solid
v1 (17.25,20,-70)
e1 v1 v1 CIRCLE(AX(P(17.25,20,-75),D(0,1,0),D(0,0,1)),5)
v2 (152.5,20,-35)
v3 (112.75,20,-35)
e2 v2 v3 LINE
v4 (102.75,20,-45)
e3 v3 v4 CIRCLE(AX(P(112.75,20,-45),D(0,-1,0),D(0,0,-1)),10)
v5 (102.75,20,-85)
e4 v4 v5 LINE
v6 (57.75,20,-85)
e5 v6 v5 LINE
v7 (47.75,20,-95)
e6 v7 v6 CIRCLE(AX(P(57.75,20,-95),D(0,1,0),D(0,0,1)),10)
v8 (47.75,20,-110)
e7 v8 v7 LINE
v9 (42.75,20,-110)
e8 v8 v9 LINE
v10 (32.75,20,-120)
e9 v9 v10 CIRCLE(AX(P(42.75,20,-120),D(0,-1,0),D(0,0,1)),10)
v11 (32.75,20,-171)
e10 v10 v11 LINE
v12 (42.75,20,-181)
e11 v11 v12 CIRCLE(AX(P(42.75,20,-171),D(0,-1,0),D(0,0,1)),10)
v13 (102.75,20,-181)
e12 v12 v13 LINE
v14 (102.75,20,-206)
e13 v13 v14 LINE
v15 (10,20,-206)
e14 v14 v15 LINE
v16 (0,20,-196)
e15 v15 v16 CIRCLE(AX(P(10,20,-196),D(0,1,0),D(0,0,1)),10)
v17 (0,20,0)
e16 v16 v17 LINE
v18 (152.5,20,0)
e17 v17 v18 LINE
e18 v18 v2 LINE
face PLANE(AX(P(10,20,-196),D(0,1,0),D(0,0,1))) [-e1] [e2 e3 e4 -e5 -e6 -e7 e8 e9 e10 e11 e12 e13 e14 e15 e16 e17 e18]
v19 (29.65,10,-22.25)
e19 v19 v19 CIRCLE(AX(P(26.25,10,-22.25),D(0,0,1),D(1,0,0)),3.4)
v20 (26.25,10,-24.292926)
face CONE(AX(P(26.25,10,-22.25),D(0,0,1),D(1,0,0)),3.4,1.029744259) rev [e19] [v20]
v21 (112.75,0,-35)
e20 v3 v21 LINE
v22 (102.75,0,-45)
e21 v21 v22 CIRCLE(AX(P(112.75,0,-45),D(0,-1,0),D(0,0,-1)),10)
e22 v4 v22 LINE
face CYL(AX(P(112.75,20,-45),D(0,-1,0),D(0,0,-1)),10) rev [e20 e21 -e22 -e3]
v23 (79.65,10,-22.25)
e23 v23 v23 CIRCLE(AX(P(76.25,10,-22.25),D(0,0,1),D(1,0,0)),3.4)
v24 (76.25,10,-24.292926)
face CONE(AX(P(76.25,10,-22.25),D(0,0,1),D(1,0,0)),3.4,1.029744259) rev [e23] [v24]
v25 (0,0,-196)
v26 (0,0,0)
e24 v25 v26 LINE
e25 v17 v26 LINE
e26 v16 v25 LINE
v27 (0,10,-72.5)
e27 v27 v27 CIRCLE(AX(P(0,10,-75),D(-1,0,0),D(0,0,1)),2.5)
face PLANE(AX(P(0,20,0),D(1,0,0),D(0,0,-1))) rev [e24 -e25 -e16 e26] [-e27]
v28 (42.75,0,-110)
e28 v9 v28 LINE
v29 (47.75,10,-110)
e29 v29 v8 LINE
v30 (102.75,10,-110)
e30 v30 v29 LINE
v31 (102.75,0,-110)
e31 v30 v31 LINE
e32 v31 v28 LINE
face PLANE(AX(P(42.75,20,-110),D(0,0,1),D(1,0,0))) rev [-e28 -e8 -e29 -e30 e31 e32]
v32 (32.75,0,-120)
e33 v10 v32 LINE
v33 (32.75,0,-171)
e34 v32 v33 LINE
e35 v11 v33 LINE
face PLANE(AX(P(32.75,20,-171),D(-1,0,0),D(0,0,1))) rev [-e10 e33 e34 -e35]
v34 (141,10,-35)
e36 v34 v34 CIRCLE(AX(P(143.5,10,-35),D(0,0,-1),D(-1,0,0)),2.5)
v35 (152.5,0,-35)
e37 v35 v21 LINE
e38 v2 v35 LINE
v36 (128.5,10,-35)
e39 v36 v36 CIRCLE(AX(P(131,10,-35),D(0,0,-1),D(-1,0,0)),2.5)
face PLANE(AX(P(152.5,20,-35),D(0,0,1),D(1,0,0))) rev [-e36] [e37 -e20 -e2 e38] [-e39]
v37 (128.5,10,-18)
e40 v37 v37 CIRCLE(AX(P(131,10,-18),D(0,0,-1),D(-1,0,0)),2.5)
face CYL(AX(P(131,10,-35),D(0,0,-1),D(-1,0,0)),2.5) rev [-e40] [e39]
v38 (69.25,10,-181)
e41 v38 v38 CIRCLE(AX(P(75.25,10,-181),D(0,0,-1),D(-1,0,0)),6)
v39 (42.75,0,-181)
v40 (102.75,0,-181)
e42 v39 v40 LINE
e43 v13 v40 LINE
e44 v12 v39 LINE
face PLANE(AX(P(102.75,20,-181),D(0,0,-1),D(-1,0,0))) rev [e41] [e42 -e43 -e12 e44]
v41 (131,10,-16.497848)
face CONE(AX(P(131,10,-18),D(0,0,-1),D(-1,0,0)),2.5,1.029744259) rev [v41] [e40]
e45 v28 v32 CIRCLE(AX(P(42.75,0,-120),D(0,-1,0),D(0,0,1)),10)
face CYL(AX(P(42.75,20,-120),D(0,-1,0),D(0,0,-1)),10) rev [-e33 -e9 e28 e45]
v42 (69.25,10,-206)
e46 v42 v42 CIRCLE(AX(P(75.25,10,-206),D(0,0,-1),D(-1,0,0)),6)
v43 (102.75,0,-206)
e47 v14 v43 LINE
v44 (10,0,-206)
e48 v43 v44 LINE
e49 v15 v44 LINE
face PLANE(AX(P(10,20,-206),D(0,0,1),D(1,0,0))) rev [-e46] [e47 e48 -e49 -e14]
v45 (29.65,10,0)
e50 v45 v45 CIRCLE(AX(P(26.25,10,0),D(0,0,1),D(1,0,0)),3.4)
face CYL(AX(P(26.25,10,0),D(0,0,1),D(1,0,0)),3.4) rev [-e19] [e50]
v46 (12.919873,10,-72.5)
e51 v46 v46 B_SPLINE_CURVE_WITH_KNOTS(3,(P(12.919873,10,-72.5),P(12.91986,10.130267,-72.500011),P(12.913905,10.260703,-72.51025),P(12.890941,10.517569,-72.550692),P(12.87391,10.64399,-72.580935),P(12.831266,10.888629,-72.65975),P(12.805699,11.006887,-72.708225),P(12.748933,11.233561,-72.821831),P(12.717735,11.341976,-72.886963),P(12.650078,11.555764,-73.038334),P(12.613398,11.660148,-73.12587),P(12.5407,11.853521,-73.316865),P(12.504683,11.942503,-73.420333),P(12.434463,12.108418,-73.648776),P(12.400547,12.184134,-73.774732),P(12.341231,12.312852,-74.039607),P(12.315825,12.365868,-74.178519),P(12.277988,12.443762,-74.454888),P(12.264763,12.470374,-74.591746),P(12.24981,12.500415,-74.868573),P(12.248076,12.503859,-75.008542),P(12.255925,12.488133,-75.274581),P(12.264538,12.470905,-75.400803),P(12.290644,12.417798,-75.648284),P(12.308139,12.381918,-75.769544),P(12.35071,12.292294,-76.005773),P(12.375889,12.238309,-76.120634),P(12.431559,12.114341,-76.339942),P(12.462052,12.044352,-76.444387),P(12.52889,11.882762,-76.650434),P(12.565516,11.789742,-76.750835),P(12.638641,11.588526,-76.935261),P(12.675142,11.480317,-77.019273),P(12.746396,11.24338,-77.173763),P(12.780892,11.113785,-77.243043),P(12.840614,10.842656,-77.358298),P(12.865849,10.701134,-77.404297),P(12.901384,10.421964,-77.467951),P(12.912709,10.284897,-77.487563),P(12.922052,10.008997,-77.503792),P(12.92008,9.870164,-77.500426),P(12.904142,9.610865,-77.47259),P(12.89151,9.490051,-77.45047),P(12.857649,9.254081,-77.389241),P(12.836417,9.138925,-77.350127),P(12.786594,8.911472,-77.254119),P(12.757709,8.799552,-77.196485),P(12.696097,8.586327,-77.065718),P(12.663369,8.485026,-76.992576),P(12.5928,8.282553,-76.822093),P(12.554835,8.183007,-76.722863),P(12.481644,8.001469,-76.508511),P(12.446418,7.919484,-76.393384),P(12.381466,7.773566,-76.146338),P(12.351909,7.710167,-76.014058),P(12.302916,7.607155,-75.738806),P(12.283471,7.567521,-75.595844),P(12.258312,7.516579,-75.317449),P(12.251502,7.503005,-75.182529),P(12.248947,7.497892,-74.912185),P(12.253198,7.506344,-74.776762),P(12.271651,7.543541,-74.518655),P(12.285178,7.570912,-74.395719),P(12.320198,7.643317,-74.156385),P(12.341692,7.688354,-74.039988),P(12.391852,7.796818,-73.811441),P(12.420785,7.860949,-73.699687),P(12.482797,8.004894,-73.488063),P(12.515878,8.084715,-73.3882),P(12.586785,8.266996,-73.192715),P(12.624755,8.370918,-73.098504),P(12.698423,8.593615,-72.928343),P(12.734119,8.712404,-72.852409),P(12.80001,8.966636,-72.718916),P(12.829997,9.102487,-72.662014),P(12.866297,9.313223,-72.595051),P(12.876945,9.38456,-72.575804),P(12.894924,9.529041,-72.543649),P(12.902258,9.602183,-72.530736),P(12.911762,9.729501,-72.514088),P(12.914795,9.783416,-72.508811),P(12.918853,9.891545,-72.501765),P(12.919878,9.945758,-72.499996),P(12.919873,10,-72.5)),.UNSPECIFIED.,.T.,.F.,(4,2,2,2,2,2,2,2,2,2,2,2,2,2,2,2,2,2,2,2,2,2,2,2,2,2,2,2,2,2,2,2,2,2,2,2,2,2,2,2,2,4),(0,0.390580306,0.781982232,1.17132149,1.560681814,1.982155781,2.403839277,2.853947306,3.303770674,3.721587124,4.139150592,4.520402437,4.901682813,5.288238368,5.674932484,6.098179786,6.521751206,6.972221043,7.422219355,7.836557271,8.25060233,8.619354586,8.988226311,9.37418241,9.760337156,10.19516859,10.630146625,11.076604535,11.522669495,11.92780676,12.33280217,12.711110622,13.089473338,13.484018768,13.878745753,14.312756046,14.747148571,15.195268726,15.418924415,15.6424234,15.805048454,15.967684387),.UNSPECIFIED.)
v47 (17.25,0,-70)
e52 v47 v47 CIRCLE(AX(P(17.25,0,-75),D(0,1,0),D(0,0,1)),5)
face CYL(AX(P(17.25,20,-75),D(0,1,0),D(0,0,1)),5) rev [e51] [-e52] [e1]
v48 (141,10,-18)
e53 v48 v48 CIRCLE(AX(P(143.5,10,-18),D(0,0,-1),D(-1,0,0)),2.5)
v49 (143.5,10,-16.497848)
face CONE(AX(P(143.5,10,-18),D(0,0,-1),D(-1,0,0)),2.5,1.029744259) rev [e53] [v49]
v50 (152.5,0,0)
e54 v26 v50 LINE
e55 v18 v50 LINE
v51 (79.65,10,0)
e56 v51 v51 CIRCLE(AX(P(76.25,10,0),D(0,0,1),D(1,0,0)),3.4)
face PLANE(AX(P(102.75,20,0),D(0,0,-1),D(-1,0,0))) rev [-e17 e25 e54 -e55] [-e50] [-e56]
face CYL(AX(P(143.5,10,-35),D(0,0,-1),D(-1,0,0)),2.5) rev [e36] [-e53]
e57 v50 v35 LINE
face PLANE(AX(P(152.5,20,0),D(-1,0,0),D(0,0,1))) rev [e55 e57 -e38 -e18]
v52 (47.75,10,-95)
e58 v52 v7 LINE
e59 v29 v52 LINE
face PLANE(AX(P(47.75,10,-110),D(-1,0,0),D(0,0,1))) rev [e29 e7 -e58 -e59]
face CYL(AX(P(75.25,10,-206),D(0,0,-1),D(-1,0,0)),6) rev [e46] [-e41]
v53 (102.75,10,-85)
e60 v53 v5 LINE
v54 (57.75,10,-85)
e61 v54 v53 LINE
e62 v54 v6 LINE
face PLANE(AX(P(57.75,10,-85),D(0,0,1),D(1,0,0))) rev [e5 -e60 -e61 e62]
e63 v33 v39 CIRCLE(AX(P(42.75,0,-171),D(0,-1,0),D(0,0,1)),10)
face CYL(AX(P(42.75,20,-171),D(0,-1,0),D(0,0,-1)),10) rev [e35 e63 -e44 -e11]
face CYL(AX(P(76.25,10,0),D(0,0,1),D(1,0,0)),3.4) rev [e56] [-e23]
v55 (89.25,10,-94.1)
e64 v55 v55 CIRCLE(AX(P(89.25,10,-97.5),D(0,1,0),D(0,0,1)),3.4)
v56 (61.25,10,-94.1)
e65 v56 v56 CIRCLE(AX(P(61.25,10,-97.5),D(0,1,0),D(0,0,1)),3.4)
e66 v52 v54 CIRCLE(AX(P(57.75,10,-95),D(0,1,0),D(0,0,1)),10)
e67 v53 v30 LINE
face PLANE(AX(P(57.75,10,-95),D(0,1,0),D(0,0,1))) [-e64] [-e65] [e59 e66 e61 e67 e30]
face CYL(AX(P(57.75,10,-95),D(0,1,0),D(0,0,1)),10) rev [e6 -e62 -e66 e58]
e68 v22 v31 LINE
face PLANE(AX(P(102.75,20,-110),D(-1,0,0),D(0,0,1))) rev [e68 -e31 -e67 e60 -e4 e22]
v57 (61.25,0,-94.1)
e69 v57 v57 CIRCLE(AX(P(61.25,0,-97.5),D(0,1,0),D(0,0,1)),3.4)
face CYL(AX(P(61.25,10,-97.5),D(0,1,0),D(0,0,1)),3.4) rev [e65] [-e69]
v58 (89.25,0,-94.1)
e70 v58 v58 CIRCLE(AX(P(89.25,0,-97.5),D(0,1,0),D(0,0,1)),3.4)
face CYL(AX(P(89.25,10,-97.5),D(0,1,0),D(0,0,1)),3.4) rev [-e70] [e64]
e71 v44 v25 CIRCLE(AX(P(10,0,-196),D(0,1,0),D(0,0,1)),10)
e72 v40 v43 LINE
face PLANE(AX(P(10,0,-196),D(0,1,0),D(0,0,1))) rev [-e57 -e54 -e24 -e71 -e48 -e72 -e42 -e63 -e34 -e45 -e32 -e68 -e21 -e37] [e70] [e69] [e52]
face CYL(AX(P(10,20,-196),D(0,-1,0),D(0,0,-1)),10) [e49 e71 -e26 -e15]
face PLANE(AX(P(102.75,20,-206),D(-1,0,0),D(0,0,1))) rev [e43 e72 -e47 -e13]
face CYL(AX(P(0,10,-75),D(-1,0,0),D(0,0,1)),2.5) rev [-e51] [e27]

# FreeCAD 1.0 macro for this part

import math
import FreeCAD as App
import Part
import Sketcher

V = App.Vector
Q = App.Units.Quantity

doc = App.newDocument("Part")
body = doc.addObject("PartDesign::Body", "Body")

# Sketch on XZ plane
sketch1 = doc.addObject("Sketcher::SketchObject", "Sketch")
body.addObject(sketch1)
sketch1.AttachmentSupport = (doc.XZ_Plane, [""])
sketch1.MapMode = "FlatFace"
sketch1.addGeometry([
    Part.LineSegment(V(0, -196, 0), V(0, 0, 0)),  # 0
    Part.LineSegment(V(0, 0, 0), V(152, 0, 0)),  # 1
    Part.LineSegment(V(152, 0, 0), V(152, -35, 0)),  # 2
    Part.LineSegment(V(152, -35, 0), V(113, -35, 0)),  # 3
    Part.ArcOfCircle(Part.Circle(V(113, -45, 0), V(0, 0, 1), 10), math.radians(90), math.radians(180)),  # 4
    Part.LineSegment(V(103, -45, 0), V(103, -110, 0)),  # 5
    Part.LineSegment(V(103, -110, 0), V(43, -110, 0)),  # 6
    Part.ArcOfCircle(Part.Circle(V(43, -120, 0), V(0, 0, 1), 10), math.radians(90), math.radians(180)),  # 7
    Part.LineSegment(V(33, -120, 0), V(33, -171, 0)),  # 8
    Part.ArcOfCircle(Part.Circle(V(43, -171, 0), V(0, 0, 1), 10), math.radians(180), math.radians(270)),  # 9
    Part.LineSegment(V(43, -181, 0), V(103, -181, 0)),  # 10
    Part.LineSegment(V(103, -181, 0), V(103, -206, 0)),  # 11
    Part.LineSegment(V(103, -206, 0), V(10, -206, 0)),  # 12
    Part.ArcOfCircle(Part.Circle(V(10, -196, 0), V(0, 0, 1), 10), math.radians(180), math.radians(270)),  # 13
], False)
sketch1.addConstraint([
    Sketcher.Constraint("Coincident", 0, 2, 1, 1),
    Sketcher.Constraint("Coincident", 1, 2, 2, 1),
    Sketcher.Constraint("Coincident", 2, 2, 3, 1),
    Sketcher.Constraint("Tangent", 3, 2, 4, 1),
    Sketcher.Constraint("Tangent", 4, 2, 5, 1),
    Sketcher.Constraint("Coincident", 5, 2, 6, 1),
    Sketcher.Constraint("Tangent", 6, 2, 7, 1),
    Sketcher.Constraint("Tangent", 7, 2, 8, 1),
    Sketcher.Constraint("Tangent", 8, 2, 9, 1),
    Sketcher.Constraint("Tangent", 9, 2, 10, 1),
    Sketcher.Constraint("Coincident", 10, 2, 11, 1),
    Sketcher.Constraint("Coincident", 11, 2, 12, 1),
    Sketcher.Constraint("Tangent", 12, 2, 13, 2),
    Sketcher.Constraint("Tangent", 13, 1, 0, 1),
    Sketcher.Constraint("Vertical", 0),
    Sketcher.Constraint("Horizontal", 1),
    Sketcher.Constraint("Vertical", 2),
    Sketcher.Constraint("Horizontal", 3),
    Sketcher.Constraint("Vertical", 5),
    Sketcher.Constraint("Horizontal", 6),
    Sketcher.Constraint("Vertical", 8),
    Sketcher.Constraint("Horizontal", 10),
    Sketcher.Constraint("Vertical", 11),
    Sketcher.Constraint("Horizontal", 12),
    Sketcher.Constraint("Coincident", 0, 2, -1, 1),
    Sketcher.Constraint("Equal", 4, 7),
    Sketcher.Constraint("Equal", 7, 9),
    Sketcher.Constraint("Equal", 9, 13),
    Sketcher.Constraint("Vertical", 5, 2, 10, 2),
    Sketcher.Constraint("Radius", 4, Q("10 mm")),
    Sketcher.Constraint("DistanceX", 6, 2, 6, 1, Q("60 mm")),
    Sketcher.Constraint("DistanceY", 0, 1, 0, 2, Q("196 mm")),
    Sketcher.Constraint("DistanceY", 2, 2, 2, 1, Q("35 mm")),
    Sketcher.Constraint("DistanceY", 5, 2, 5, 1, Q("65 mm")),
    Sketcher.Constraint("DistanceY", 8, 2, 8, 1, Q("51 mm")),
    Sketcher.Constraint("DistanceX", 1, 1, 1, 2, Q("152.5 mm")),
    Sketcher.Constraint("DistanceX", 3, 2, 3, 1, Q("39.75 mm")),
])
pad1 = doc.addObject("PartDesign::Pad", "Pad")
body.addObject(pad1)
pad1.Profile = sketch1
pad1.Length = 20
pad1.Reversed = True

# Sketch on XZ plane
sketch2 = doc.addObject("Sketcher::SketchObject", "Sketch001")
body.addObject(sketch2)
sketch2.AttachmentSupport = (doc.XZ_Plane, [""])
sketch2.MapMode = "FlatFace"
sketch2.AttachmentOffset = App.Placement(V(0, 0, -20), App.Rotation())
sketch2.addGeometry([
    Part.LineSegment(V(48, -110, 0), V(48, -95, 0)),  # 0
    Part.ArcOfCircle(Part.Circle(V(58, -95, 0), V(0, 0, 1), 10), math.radians(90), math.radians(180)),  # 1
    Part.LineSegment(V(58, -85, 0), V(103, -85, 0)),  # 2
    Part.LineSegment(V(103, -85, 0), V(103, -110, 0)),  # 3
    Part.LineSegment(V(103, -110, 0), V(48, -110, 0)),  # 4
], False)
sketch2.addConstraint([
    Sketcher.Constraint("Tangent", 0, 2, 1, 2),
    Sketcher.Constraint("Tangent", 1, 1, 2, 1),
    Sketcher.Constraint("Coincident", 2, 2, 3, 1),
    Sketcher.Constraint("Coincident", 3, 2, 4, 1),
    Sketcher.Constraint("Coincident", 4, 2, 0, 1),
    Sketcher.Constraint("Vertical", 0),
    Sketcher.Constraint("Horizontal", 2),
    Sketcher.Constraint("Vertical", 3),
    Sketcher.Constraint("Horizontal", 4),
    Sketcher.Constraint("Radius", 1, Q("10 mm")),
    Sketcher.Constraint("DistanceX", 2, 1, 2, 2, Q("45 mm")),
    Sketcher.Constraint("DistanceY", 0, 1, 0, 2, Q("15 mm")),
    Sketcher.Constraint("DistanceY", 1, 3, -1, 1, Q("95 mm")),
    Sketcher.Constraint("DistanceX", -1, 1, 1, 3, Q("57.75 mm")),
])
pocket1 = doc.addObject("PartDesign::Pocket", "Pocket")
body.addObject(pocket1)
pocket1.Profile = sketch2
pocket1.Length = 10
pocket1.Reversed = True

# Sketch on XY plane
sketch3 = doc.addObject("Sketcher::SketchObject", "Sketch002")
body.addObject(sketch3)
sketch3.AttachmentSupport = (doc.XY_Plane, [""])
sketch3.MapMode = "FlatFace"
sketch3.AttachmentOffset = App.Placement(V(0, 0, -206), App.Rotation())
sketch3.addGeometry(Part.Circle(V(75, 10, 0), V(0, 0, 1), 6), False)
sketch3.addConstraint([
    Sketcher.Constraint("Diameter", 0, Q("12 mm")),
    Sketcher.Constraint("DistanceY", -1, 1, 0, 3, Q("10 mm")),
    Sketcher.Constraint("DistanceX", -1, 1, 0, 3, Q("75.25 mm")),
])
doc.recompute()
hole = doc.addObject("PartDesign::Hole", "Hole")
body.addObject(hole)
hole.Profile = sketch3
hole.ThreadType = "None"
hole.Diameter = 12
hole.DepthType = "Dimension"
hole.Depth = 25
hole.DrillPoint = "Flat"
hole.Reversed = True

# Sketch on XZ plane
sketch4 = doc.addObject("Sketcher::SketchObject", "Sketch003")
body.addObject(sketch4)
sketch4.AttachmentSupport = (doc.XZ_Plane, [""])
sketch4.MapMode = "FlatFace"
sketch4.AttachmentOffset = App.Placement(V(0, 0, -20), App.Rotation())
sketch4.addGeometry(Part.Circle(V(17, -75, 0), V(0, 0, 1), 5), False)
sketch4.addConstraint([
    Sketcher.Constraint("Diameter", 0, Q("10 mm")),
    Sketcher.Constraint("DistanceY", 0, 3, -1, 1, Q("75 mm")),
    Sketcher.Constraint("DistanceX", -1, 1, 0, 3, Q("17.25 mm")),
])
doc.recompute()
hole2 = doc.addObject("PartDesign::Hole", "Hole001")
body.addObject(hole2)
hole2.Profile = sketch4
hole2.ThreadType = "None"
hole2.Diameter = 10
hole2.DepthType = "ThroughAll"
hole2.Reversed = True

# Sketch on YZ plane
sketch5 = doc.addObject("Sketcher::SketchObject", "Sketch004")
body.addObject(sketch5)
sketch5.AttachmentSupport = (doc.YZ_Plane, [""])
sketch5.MapMode = "FlatFace"
sketch5.addGeometry(Part.Circle(V(10, -75, 0), V(0, 0, 1), 2.5), False)
sketch5.addConstraint([
    Sketcher.Constraint("Diameter", 0, Q("5 mm")),
    Sketcher.Constraint("DistanceX", -1, 1, 0, 3, Q("10 mm")),
    Sketcher.Constraint("DistanceY", 0, 3, -1, 1, Q("75 mm")),
])
pocket2 = doc.addObject("PartDesign::Pocket", "Pocket001")
body.addObject(pocket2)
pocket2.Profile = sketch5
pocket2.Length = 12.919873
pocket2.Reversed = True

# Sketch on XY plane
sketch6 = doc.addObject("Sketcher::SketchObject", "Sketch005")
body.addObject(sketch6)
sketch6.AttachmentSupport = (doc.XY_Plane, [""])
sketch6.MapMode = "FlatFace"
sketch6.addGeometry([
    Part.Circle(V(26.2, 10, 0), V(0, 0, 1), 3.4),
    Part.Circle(V(76.2, 10, 0), V(0, 0, 1), 3.4),
], False)
sketch6.addConstraint([
    Sketcher.Constraint("Equal", 0, 1),
    Sketcher.Constraint("Horizontal", 0, 3, 1, 3),
    Sketcher.Constraint("Diameter", 0, Q("6.8 mm")),
    Sketcher.Constraint("DistanceY", -1, 1, 0, 3, Q("10 mm")),
    Sketcher.Constraint("DistanceX", 0, 3, 1, 3, Q("50 mm")),
    Sketcher.Constraint("DistanceX", -1, 1, 0, 3, Q("26.25 mm")),
])
doc.recompute()
hole3 = doc.addObject("PartDesign::Hole", "Hole002")
body.addObject(hole3)
hole3.Profile = sketch6
hole3.ThreadType = "None"
hole3.Diameter = 6.8
hole3.DepthType = "Dimension"
hole3.Depth = 22.25
hole3.DrillPoint = "Angled"
hole3.DrillPointAngle = 118

# Sketch on XY plane
sketch7 = doc.addObject("Sketcher::SketchObject", "Sketch006")
body.addObject(sketch7)
sketch7.AttachmentSupport = (doc.XY_Plane, [""])
sketch7.MapMode = "FlatFace"
sketch7.AttachmentOffset = App.Placement(V(0, 0, -35), App.Rotation())
sketch7.addGeometry([
    Part.Circle(V(143.5, 10, 0), V(0, 0, 1), 2.5),
    Part.Circle(V(131, 10, 0), V(0, 0, 1), 2.5),
], False)
sketch7.addConstraint([
    Sketcher.Constraint("Equal", 0, 1),
    Sketcher.Constraint("Horizontal", 0, 3, 1, 3),
    Sketcher.Constraint("Diameter", 0, Q("5 mm")),
    Sketcher.Constraint("DistanceY", -1, 1, 0, 3, Q("10 mm")),
    Sketcher.Constraint("DistanceX", -1, 1, 1, 3, Q("131 mm")),
    Sketcher.Constraint("DistanceX", -1, 1, 0, 3, Q("143.5 mm")),
])
doc.recompute()
hole4 = doc.addObject("PartDesign::Hole", "Hole003")
body.addObject(hole4)
hole4.Profile = sketch7
hole4.ThreadType = "None"
hole4.Diameter = 5
hole4.DepthType = "Dimension"
hole4.Depth = 17
hole4.DrillPoint = "Angled"
hole4.DrillPointAngle = 118
hole4.Reversed = True

# Sketch on XZ plane
sketch8 = doc.addObject("Sketcher::SketchObject", "Sketch007")
body.addObject(sketch8)
sketch8.AttachmentSupport = (doc.XZ_Plane, [""])
sketch8.MapMode = "FlatFace"
sketch8.AttachmentOffset = App.Placement(V(0, 0, -10), App.Rotation())
sketch8.addGeometry([
    Part.Circle(V(61.2, -97.5, 0), V(0, 0, 1), 3.4),
    Part.Circle(V(89.2, -97.5, 0), V(0, 0, 1), 3.4),
], False)
sketch8.addConstraint([
    Sketcher.Constraint("Equal", 0, 1),
    Sketcher.Constraint("Horizontal", 0, 3, 1, 3),
    Sketcher.Constraint("Diameter", 0, Q("6.8 mm")),
    Sketcher.Constraint("DistanceX", 0, 3, 1, 3, Q("28 mm")),
    Sketcher.Constraint("DistanceY", 0, 3, -1, 1, Q("97.5 mm")),
    Sketcher.Constraint("DistanceX", -1, 1, 0, 3, Q("61.25 mm")),
])
doc.recompute()
hole5 = doc.addObject("PartDesign::Hole", "Hole004")
body.addObject(hole5)
hole5.Profile = sketch8
hole5.ThreadType = "None"
hole5.Diameter = 6.8
hole5.DepthType = "Dimension"
hole5.Depth = 22.25
hole5.DrillPoint = "Angled"
hole5.DrillPointAngle = 118
hole5.Reversed = True

doc.recompute()
